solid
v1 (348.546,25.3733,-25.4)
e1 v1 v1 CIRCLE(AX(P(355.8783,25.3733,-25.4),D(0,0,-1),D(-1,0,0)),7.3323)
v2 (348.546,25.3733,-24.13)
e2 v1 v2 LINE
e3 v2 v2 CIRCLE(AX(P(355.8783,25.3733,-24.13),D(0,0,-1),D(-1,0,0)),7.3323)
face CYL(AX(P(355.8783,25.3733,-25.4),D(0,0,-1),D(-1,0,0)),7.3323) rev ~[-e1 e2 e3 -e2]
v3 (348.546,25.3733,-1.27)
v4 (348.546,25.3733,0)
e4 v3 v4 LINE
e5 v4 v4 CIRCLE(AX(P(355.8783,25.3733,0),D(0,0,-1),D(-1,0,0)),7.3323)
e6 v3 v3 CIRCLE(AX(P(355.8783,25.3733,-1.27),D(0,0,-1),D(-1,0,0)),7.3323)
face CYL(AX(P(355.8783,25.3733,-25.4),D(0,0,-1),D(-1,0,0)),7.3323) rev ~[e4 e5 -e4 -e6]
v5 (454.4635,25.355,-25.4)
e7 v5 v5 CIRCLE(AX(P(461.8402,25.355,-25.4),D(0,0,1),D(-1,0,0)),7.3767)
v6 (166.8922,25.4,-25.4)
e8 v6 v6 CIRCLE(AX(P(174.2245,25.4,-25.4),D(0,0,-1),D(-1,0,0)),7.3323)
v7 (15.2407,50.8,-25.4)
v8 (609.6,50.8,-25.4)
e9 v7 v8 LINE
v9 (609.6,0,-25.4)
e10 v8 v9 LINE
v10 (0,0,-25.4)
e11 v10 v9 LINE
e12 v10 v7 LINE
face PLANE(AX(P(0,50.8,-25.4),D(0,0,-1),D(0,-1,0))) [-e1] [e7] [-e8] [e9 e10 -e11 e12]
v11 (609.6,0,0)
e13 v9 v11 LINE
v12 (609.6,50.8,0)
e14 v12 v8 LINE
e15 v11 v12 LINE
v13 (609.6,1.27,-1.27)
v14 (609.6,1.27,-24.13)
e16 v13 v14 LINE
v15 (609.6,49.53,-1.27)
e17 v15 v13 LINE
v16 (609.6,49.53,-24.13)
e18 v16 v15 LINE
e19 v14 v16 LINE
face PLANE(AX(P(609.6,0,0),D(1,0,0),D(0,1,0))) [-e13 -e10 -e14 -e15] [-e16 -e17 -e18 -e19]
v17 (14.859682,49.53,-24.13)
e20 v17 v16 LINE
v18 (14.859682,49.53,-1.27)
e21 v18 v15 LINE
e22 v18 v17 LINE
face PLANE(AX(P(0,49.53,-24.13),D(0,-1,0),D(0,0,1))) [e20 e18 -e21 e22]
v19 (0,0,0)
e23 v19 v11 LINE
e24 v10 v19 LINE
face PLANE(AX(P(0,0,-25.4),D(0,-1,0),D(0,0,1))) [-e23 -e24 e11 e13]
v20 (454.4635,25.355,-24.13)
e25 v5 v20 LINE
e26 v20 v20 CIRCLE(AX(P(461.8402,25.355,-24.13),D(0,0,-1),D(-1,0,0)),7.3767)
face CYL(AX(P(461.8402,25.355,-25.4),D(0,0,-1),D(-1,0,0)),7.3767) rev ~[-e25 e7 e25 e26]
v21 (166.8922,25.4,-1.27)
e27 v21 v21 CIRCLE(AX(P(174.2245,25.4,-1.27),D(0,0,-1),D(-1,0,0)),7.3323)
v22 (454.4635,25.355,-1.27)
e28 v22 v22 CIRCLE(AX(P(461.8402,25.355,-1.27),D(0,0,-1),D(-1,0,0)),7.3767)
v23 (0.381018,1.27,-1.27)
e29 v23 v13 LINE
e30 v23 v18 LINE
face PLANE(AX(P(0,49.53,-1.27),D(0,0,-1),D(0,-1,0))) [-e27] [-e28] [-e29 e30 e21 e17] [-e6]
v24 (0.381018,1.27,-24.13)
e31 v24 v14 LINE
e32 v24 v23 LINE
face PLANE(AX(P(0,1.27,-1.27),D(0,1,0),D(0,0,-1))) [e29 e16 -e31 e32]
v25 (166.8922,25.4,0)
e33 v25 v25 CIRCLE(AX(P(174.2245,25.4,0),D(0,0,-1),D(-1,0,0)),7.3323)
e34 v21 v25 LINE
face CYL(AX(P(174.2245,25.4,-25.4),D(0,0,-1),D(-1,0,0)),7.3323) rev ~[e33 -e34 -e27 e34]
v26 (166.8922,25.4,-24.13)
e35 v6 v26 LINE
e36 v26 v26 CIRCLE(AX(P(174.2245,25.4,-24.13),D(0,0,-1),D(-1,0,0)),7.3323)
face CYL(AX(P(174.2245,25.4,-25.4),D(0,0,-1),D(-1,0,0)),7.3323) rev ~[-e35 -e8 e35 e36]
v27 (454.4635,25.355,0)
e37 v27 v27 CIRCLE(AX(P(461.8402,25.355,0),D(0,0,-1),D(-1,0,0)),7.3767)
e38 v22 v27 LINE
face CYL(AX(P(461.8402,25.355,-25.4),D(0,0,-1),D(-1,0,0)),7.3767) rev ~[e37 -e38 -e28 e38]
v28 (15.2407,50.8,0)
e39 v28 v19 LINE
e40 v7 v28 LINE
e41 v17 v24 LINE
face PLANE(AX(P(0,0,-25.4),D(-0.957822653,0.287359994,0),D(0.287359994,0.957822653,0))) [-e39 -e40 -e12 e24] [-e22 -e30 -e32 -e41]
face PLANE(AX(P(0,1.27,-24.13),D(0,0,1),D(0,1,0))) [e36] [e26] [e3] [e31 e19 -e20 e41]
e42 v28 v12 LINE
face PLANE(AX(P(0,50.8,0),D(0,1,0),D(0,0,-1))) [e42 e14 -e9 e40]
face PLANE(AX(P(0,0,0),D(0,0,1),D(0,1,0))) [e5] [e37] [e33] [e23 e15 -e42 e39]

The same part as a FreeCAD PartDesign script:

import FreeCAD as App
import Part
import Sketcher
from FreeCAD import Vector
Q = App.Units.Quantity


def add_polygon(sketch, points):
    """Adds a closed chain of lines whose ends are joined by coincident constraints."""
    first, n = sketch.GeometryCount, len(points)
    for a, b in zip(points, points[1:] + points[:1]):
        sketch.addGeometry(Part.LineSegment(App.Vector(*a, 0), App.Vector(*b, 0)), False)
    for i in range(n):
        sketch.addConstraint(Sketcher.Constraint("Coincident", first + i, 2, first + (i + 1) % n, 1))

doc = App.newDocument("Part")
params = doc.addObject("Spreadsheet::Sheet", "Params")
for row, (alias, value) in enumerate([
    ("sketch1_width", "2 in"),
    ("sketch1_height", "1 in"),
    ("pad1_length", "24 in"),
    ("sketch2_height", "2 in"),
], start=1):
    params.set(f"A{row}", alias)
    params.set(f"B{row}", "=" + value)
    params.setAlias(f"B{row}", alias)

body = doc.addObject("PartDesign::Body", "Body")

# Sketch on YZ plane
sketch1 = body.newObject("Sketcher::SketchObject", "Sketch")
sketch1.AttachmentSupport = (doc.getObject("YZ_Plane"), [""])
sketch1.MapMode = "FlatFace"
add_polygon(sketch1, [(51, 0), (0, 0), (0, -25), (51, -25)])  # lines 0-3
add_polygon(sketch1, [(50, -1), (50, -24), (1, -24), (1, -1)])  # lines 4-7
sketch1.addConstraint(Sketcher.Constraint("Horizontal", 0))
sketch1.addConstraint(Sketcher.Constraint("Vertical", 1))
sketch1.addConstraint(Sketcher.Constraint("Horizontal", 2))
sketch1.addConstraint(Sketcher.Constraint("Vertical", 3))
sketch1.addConstraint(Sketcher.Constraint("Vertical", 4))
sketch1.addConstraint(Sketcher.Constraint("Horizontal", 5))
sketch1.addConstraint(Sketcher.Constraint("Vertical", 6))
sketch1.addConstraint(Sketcher.Constraint("Horizontal", 7))
sketch1.addConstraint(Sketcher.Constraint("Coincident", 0, 2, -1, 1))
sketch1.addConstraint(Sketcher.Constraint("DistanceX", 0, 2, 0, 1, Q("2 in")))
sketch1.addConstraint(Sketcher.Constraint("DistanceY", 1, 2, 1, 1, Q("1 in")))
sketch1.addConstraint(Sketcher.Constraint("DistanceX", -1, 1, 5, 2, Q("0.05 in")))
sketch1.addConstraint(Sketcher.Constraint("DistanceY", 6, 2, -1, 1, Q("0.05 in")))
sketch1.addConstraint(Sketcher.Constraint("DistanceX", 4, 2, 2, 2, Q("0.05 in")))
sketch1.addConstraint(Sketcher.Constraint("DistanceY", 2, 2, 4, 2, Q("0.05 in")))
sketch1.setExpression("Constraints[17]", "Params.sketch1_width")
sketch1.setExpression("Constraints[18]", "Params.sketch1_height")
pad1 = body.newObject("PartDesign::Pad", "Pad")
pad1.Profile = sketch1
pad1.setExpression("Length", "Params.pad1_length")

# Sketch on XY plane
sketch2 = body.newObject("Sketcher::SketchObject", "Sketch001")
sketch2.AttachmentSupport = (doc.getObject("XY_Plane"), [""])
sketch2.MapMode = "FlatFace"
sketch2.AttachmentOffset = App.Placement(Vector(0, 0, -1 * 25.4), App.Rotation())
sketch2.addGeometry(Part.Circle(Vector(174, 25, 0), Vector(0, 0, 1), 7), False)  # 0
sketch2.addGeometry(Part.Circle(Vector(356, 25, 0), Vector(0, 0, 1), 7), False)  # 1
sketch2.addGeometry(Part.Circle(Vector(462, 25, 0), Vector(0, 0, 1), 7), False)  # 2
add_polygon(sketch2, [(15, 51), (0, 0), (0, 51)])  # lines 3-5
sketch2.addConstraint(Sketcher.Constraint("Vertical", 4))
sketch2.addConstraint(Sketcher.Constraint("Horizontal", 5))
sketch2.addConstraint(Sketcher.Constraint("Coincident", 3, 2, -1, 1))
sketch2.addConstraint(Sketcher.Constraint("Equal", 0, 1))
sketch2.addConstraint(Sketcher.Constraint("Angle", 3, Q("-106.7 deg")))
sketch2.addConstraint(Sketcher.Constraint("Diameter", 0, Q("14.6646 mm")))
sketch2.addConstraint(Sketcher.Constraint("DistanceY", 4, 1, 4, 2, Q("2 in")))
sketch2.addConstraint(Sketcher.Constraint("DistanceY", -1, 1, 0, 3, Q("1 in")))
sketch2.addConstraint(Sketcher.Constraint("Diameter", 2, Q("14.7534 mm")))
sketch2.addConstraint(Sketcher.Constraint("DistanceX", 5, 2, 0, 3, Q("6.2592 in")))
sketch2.addConstraint(Sketcher.Constraint("DistanceX", -1, 1, 1, 3, Q("355.8783 mm")))
sketch2.addConstraint(Sketcher.Constraint("DistanceY", -1, 1, 1, 3, Q("25.3733 mm")))
sketch2.addConstraint(Sketcher.Constraint("DistanceX", -1, 1, 2, 3, Q("461.8402 mm")))
sketch2.addConstraint(Sketcher.Constraint("DistanceY", -1, 1, 2, 3, Q("25.355 mm")))
sketch2.setExpression("Constraints[9]", "Params.sketch2_height")
pocket1 = body.newObject("PartDesign::Pocket", "Pocket")
pocket1.Profile = sketch2
pocket1.Type = "ThroughAll"
pocket1.Reversed = True

doc.recompute()
